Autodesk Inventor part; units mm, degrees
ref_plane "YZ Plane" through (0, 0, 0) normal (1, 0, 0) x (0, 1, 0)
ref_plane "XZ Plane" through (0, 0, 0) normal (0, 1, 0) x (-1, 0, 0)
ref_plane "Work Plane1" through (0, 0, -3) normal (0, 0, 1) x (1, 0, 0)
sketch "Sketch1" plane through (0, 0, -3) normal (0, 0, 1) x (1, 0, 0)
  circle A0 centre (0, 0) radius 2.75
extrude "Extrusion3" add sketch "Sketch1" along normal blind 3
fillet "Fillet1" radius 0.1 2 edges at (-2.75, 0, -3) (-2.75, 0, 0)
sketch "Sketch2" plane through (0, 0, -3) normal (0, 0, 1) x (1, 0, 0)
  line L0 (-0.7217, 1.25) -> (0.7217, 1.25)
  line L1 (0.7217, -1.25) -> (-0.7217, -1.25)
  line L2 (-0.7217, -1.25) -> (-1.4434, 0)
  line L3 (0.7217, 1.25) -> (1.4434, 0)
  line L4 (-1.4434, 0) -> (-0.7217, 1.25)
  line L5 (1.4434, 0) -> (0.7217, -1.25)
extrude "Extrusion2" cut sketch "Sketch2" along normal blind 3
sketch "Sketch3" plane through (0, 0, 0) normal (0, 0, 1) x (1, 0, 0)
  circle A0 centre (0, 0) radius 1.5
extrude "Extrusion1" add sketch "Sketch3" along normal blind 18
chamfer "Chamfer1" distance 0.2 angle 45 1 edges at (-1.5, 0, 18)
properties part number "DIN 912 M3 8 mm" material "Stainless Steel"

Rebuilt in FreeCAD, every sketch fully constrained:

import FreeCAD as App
import Part
import Sketcher
Q = App.Units.Quantity


def edges_at(feature, points):
    """Names of the edges that pass closest to the given points."""
    edges = feature.Shape.Edges
    near = lambda p: min(range(len(edges)), key=lambda i: edges[i].distToShape(Part.Vertex(*p))[0])
    return sorted({f"Edge{near(p) + 1}" for p in points})

doc = App.newDocument("Part")
body = doc.addObject("PartDesign::Body", "Body")

# Sketch on XY plane
sketch1 = doc.addObject("Sketcher::SketchObject", "Sketch")
body.addObject(sketch1)
sketch1.AttachmentSupport = (doc.XY_Plane, [""])
sketch1.MapMode = "FlatFace"
sketch1.AttachmentOffset = App.Placement(App.Vector(0, 0, -3), App.Rotation())
sketch1.addGeometry(Part.Circle(App.Vector(0, 0, 0), App.Vector(0, 0, 1), 2.75), False)
sketch1.addConstraint(Sketcher.Constraint("Coincident", 0, 3, -1, 1))
sketch1.addConstraint(Sketcher.Constraint("Diameter", 0, Q("5.5 mm")))
pad1 = doc.addObject("PartDesign::Pad", "Pad")
body.addObject(pad1)
pad1.Profile = sketch1
pad1.Length = 3
doc.recompute()

fillet = doc.addObject("PartDesign::Fillet", "Fillet")
body.addObject(fillet)
fillet.Base = (pad1, edges_at(pad1, [(-2.75, 0, -3), (-2.75, 0, 0)]))
fillet.Radius = 0.1

# Sketch on XY plane
sketch2 = doc.addObject("Sketcher::SketchObject", "Sketch001")
body.addObject(sketch2)
sketch2.AttachmentSupport = (doc.XY_Plane, [""])
sketch2.MapMode = "FlatFace"
sketch2.AttachmentOffset = App.Placement(App.Vector(0, 0, -3), App.Rotation())
sketch2.addGeometry(Part.LineSegment(App.Vector(0.7217, 1.25, 0), App.Vector(-0.7217, 1.25, 0)), False)
sketch2.addGeometry(Part.LineSegment(App.Vector(-0.7217, 1.25, 0), App.Vector(-1.4434, 0, 0)), False)
sketch2.addGeometry(Part.LineSegment(App.Vector(-1.4434, 0, 0), App.Vector(-0.7217, -1.25, 0)), False)
sketch2.addGeometry(Part.LineSegment(App.Vector(-0.7217, -1.25, 0), App.Vector(0.7217, -1.25, 0)), False)
sketch2.addGeometry(Part.LineSegment(App.Vector(0.7217, -1.25, 0), App.Vector(1.4434, 0, 0)), False)
sketch2.addGeometry(Part.LineSegment(App.Vector(1.4434, 0, 0), App.Vector(0.7217, 1.25, 0)), False)
sketch2.addConstraint(Sketcher.Constraint("Coincident", 0, 2, 1, 1))
sketch2.addConstraint(Sketcher.Constraint("Coincident", 1, 2, 2, 1))
sketch2.addConstraint(Sketcher.Constraint("Coincident", 2, 2, 3, 1))
sketch2.addConstraint(Sketcher.Constraint("Coincident", 3, 2, 4, 1))
sketch2.addConstraint(Sketcher.Constraint("Coincident", 4, 2, 5, 1))
sketch2.addConstraint(Sketcher.Constraint("Coincident", 5, 2, 0, 1))
sketch2.addConstraint(Sketcher.Constraint("Horizontal", 0))
sketch2.addConstraint(Sketcher.Constraint("Horizontal", 3))
sketch2.addConstraint(Sketcher.Constraint("Symmetric", 0, 2, 3, 2, -1, 1))
sketch2.addConstraint(Sketcher.Constraint("Symmetric", 1, 2, 4, 2, -1, 1))
sketch2.addConstraint(Sketcher.Constraint("PointOnObject", 1, 2, -1))
sketch2.addConstraint(Sketcher.Constraint("Parallel", 2, 5))
sketch2.addConstraint(Sketcher.Constraint("Vertical", 0, 2, 2, 2))
sketch2.addConstraint(Sketcher.Constraint("Angle", 1, Q("-120.0004 deg")))
sketch2.addConstraint(Sketcher.Constraint("DistanceY", 2, 2, 0, 2, Q("2.5 mm")))
sketch2.addConstraint(Sketcher.Constraint("DistanceX", 0, 2, 0, 1, Q("1.4434 mm")))
pocket1 = doc.addObject("PartDesign::Pocket", "Pocket")
body.addObject(pocket1)
pocket1.Profile = sketch2
pocket1.Length = 3
pocket1.Reversed = True

# Sketch on XY plane
sketch3 = doc.addObject("Sketcher::SketchObject", "Sketch002")
body.addObject(sketch3)
sketch3.AttachmentSupport = (doc.XY_Plane, [""])
sketch3.MapMode = "FlatFace"
sketch3.addGeometry(Part.Circle(App.Vector(0, 0, 0), App.Vector(0, 0, 1), 1.5), False)
sketch3.addConstraint(Sketcher.Constraint("Coincident", 0, 3, -1, 1))
sketch3.addConstraint(Sketcher.Constraint("Diameter", 0, Q("3 mm")))
pad2 = doc.addObject("PartDesign::Pad", "Pad001")
body.addObject(pad2)
pad2.Profile = sketch3
pad2.Length = 18
doc.recompute()

chamfer = doc.addObject("PartDesign::Chamfer", "Chamfer")
body.addObject(chamfer)
chamfer.Base = (pad2, edges_at(pad2, [(-1.5, 0, 18)]))
chamfer.Size = 0.2

doc.recompute()
